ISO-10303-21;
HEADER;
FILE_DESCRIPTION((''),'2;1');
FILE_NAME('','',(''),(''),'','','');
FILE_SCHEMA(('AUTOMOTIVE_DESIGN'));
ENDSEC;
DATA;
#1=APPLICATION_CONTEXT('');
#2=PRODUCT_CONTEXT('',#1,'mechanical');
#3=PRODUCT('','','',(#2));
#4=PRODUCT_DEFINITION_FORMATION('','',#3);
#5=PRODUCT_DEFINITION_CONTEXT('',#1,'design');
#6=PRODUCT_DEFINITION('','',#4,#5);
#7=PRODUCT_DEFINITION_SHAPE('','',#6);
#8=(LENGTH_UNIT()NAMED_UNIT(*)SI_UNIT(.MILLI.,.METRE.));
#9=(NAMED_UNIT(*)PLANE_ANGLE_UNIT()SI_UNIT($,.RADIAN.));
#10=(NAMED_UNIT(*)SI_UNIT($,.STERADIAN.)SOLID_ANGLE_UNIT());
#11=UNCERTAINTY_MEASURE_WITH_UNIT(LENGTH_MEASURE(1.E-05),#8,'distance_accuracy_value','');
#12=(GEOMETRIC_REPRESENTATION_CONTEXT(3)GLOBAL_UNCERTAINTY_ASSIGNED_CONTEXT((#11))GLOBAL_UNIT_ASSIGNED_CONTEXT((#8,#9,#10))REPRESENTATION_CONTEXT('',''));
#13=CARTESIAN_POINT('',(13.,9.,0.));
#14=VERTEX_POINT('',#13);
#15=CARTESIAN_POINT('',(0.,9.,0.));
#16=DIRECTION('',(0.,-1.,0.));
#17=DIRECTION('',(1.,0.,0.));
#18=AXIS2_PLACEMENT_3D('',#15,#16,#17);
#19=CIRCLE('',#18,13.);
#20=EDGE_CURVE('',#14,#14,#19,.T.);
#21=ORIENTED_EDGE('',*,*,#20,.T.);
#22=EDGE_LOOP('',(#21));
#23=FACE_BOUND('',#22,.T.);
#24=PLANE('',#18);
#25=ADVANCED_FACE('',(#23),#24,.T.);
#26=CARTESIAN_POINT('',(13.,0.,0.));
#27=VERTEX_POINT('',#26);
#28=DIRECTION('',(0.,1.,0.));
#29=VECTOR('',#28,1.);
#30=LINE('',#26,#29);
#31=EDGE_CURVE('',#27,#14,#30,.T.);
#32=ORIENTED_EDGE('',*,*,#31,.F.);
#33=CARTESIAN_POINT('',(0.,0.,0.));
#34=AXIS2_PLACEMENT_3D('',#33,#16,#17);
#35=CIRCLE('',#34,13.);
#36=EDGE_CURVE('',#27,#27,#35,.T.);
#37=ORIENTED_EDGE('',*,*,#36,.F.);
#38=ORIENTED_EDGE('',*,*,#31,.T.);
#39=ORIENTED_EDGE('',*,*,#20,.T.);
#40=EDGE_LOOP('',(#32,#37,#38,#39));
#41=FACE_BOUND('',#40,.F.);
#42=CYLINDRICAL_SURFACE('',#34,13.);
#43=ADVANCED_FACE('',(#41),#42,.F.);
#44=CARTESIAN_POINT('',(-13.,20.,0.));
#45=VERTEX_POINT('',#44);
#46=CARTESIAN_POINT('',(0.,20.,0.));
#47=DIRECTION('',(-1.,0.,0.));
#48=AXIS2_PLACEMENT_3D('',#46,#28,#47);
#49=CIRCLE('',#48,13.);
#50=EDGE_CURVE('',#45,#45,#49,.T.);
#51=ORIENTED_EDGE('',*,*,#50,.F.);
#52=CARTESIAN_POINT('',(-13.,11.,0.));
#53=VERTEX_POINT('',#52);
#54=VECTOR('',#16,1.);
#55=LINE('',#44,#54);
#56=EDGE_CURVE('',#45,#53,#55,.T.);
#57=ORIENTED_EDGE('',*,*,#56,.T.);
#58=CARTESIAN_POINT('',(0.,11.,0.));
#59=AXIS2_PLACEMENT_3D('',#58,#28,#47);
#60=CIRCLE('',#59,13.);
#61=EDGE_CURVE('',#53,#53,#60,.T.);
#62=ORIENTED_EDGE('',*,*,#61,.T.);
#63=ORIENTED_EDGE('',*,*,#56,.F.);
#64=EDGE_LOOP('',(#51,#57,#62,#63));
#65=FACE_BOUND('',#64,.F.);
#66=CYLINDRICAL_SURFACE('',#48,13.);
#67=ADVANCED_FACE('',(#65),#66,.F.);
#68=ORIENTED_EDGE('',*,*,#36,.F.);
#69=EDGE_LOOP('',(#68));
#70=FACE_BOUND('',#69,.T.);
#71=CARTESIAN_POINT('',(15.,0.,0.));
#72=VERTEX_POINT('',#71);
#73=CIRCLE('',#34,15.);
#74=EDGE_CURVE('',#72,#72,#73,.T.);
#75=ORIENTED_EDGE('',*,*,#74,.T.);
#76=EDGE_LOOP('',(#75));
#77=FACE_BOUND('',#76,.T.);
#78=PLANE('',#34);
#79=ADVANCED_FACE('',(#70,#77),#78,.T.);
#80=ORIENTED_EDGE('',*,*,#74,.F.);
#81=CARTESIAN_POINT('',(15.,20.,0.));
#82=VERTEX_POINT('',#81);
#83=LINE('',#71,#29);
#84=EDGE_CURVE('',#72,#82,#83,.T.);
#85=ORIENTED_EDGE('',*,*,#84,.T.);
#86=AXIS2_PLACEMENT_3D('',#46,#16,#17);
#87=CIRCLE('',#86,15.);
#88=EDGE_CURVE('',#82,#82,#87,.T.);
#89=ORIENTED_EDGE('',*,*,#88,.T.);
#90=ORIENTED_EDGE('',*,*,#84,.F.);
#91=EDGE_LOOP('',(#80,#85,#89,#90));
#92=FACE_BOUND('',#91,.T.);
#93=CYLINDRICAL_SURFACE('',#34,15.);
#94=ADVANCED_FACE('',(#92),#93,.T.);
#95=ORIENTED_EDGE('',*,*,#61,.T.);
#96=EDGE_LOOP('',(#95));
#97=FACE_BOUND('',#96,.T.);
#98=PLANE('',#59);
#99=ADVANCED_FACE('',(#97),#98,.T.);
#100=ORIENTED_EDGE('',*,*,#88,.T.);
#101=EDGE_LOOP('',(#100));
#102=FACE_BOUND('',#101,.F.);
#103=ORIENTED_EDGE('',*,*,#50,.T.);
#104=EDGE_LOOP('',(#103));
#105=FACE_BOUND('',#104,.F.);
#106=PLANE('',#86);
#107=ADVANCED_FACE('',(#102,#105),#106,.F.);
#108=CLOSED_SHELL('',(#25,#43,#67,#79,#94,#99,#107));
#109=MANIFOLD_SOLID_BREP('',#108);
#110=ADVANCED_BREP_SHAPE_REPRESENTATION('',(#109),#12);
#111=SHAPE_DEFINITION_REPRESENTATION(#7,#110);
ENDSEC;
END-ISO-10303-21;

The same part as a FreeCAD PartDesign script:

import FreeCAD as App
import Part
import Sketcher

doc = App.newDocument("Part")
body = doc.addObject("PartDesign::Body", "Body")

# Sketch on XZ plane
sketch1 = body.newObject("Sketcher::SketchObject", "Sketch")
sketch1.AttachmentSupport = (doc.getObject("XZ_Plane"), [""])
sketch1.MapMode = "FlatFace"
sketch1.addGeometry(Part.Circle(App.Vector(0, 0, 0), App.Vector(0, 0, 1), 15), False)
sketch1.addConstraint(Sketcher.Constraint("Coincident", 0, 3, -1, 1))
sketch1.addConstraint(Sketcher.Constraint("Diameter", 0, 30.0))
pad1 = body.newObject("PartDesign::Pad", "Pad")
pad1.Profile = sketch1
pad1.Length = 20
pad1.Reversed = True

# Sketch on XZ plane
sketch2 = body.newObject("Sketcher::SketchObject", "Sketch001")
sketch2.AttachmentSupport = (doc.getObject("XZ_Plane"), [""])
sketch2.MapMode = "FlatFace"
sketch2.addGeometry(Part.Circle(App.Vector(0, 0, 0), App.Vector(0, 0, 1), 13), False)
sketch2.addConstraint(Sketcher.Constraint("Coincident", 0, 3, -1, 1))
sketch2.addConstraint(Sketcher.Constraint("Diameter", 0, 26.0))
pocket1 = body.newObject("PartDesign::Pocket", "Pocket")
pocket1.Profile = sketch2
pocket1.Length = 9

# Sketch on XZ plane
sketch3 = body.newObject("Sketcher::SketchObject", "Sketch002")
sketch3.AttachmentSupport = (doc.getObject("XZ_Plane"), [""])
sketch3.MapMode = "FlatFace"
sketch3.AttachmentOffset = App.Placement(App.Vector(0, 0, -20), App.Rotation())
sketch3.addGeometry(Part.Circle(App.Vector(0, 0, 0), App.Vector(0, 0, 1), 13), False)
sketch3.addConstraint(Sketcher.Constraint("Coincident", 0, 3, -1, 1))
sketch3.addConstraint(Sketcher.Constraint("Diameter", 0, 26.0))
pocket2 = body.newObject("PartDesign::Pocket", "Pocket001")
pocket2.Profile = sketch3
pocket2.Length = 9
pocket2.Reversed = True

doc.recompute()
